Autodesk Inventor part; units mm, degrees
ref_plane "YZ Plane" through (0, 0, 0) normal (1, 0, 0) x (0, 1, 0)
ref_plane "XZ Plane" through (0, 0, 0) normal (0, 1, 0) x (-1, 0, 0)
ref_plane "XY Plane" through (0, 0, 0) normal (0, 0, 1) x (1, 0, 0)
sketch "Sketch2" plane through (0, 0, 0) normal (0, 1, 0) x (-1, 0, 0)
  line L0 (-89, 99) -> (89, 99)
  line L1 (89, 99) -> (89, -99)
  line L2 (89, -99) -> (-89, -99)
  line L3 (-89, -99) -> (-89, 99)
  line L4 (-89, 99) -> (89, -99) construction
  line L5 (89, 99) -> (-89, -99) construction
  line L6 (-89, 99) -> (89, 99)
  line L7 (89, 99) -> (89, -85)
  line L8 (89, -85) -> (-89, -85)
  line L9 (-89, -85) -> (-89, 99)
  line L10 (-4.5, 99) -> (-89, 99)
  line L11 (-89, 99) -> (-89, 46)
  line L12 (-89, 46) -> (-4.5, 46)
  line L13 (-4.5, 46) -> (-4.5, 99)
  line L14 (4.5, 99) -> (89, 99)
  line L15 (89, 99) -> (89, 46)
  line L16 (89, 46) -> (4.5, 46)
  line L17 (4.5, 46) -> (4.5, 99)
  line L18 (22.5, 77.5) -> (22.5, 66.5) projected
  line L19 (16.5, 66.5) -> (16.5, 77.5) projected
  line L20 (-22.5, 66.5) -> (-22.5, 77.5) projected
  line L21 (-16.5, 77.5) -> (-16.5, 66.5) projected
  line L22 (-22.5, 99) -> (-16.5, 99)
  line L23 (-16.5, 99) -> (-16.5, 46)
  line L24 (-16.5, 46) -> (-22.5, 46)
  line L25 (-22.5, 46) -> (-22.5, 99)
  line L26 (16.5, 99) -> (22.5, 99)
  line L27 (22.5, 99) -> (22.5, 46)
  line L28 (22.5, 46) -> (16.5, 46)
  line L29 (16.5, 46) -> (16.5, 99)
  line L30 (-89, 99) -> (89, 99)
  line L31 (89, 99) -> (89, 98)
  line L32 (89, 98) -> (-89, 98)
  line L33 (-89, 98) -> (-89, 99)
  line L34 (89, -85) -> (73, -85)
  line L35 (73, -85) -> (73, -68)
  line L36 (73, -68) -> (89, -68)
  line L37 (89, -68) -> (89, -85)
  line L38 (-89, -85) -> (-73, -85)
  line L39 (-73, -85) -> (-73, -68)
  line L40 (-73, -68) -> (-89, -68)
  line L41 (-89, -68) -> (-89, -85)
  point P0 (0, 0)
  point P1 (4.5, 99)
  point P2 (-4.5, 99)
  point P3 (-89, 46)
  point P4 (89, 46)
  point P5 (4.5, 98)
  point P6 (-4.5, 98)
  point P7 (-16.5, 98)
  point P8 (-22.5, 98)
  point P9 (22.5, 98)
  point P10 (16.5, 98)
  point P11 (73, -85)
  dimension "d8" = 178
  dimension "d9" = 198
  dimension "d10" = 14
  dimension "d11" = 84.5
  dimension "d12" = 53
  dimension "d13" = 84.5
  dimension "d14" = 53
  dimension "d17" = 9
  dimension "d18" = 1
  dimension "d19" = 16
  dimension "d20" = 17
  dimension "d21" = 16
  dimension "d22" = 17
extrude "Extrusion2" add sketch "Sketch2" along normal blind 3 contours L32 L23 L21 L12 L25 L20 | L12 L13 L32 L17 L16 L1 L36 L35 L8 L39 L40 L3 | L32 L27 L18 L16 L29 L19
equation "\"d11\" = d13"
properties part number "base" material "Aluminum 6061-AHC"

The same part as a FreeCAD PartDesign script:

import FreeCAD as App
import Part
import Sketcher

V = App.Vector

doc = App.newDocument("Part")
body = doc.addObject("PartDesign::Body", "Body")

# Sketch on XZ plane
sketch1 = body.newObject("Sketcher::SketchObject", "Sketch")
sketch1.AttachmentSupport = (doc.getObject("XZ_Plane"), [""])
sketch1.MapMode = "FlatFace"
sketch1.addGeometry([
    Part.LineSegment(V(16, 98, 0), V(22, 98, 0)),  # 0
    Part.LineSegment(V(22, 98, 0), V(22, 46, 0)),  # 1
    Part.LineSegment(V(22, 46, 0), V(89, 46, 0)),  # 2
    Part.LineSegment(V(89, 46, 0), V(89, -68, 0)),  # 3
    Part.LineSegment(V(89, -68, 0), V(73, -68, 0)),  # 4
    Part.LineSegment(V(73, -68, 0), V(73, -85, 0)),  # 5
    Part.LineSegment(V(73, -85, 0), V(-73, -85, 0)),  # 6
    Part.LineSegment(V(-73, -85, 0), V(-73, -68, 0)),  # 7
    Part.LineSegment(V(-73, -68, 0), V(-89, -68, 0)),  # 8
    Part.LineSegment(V(-89, -68, 0), V(-89, 46, 0)),  # 9
    Part.LineSegment(V(-89, 46, 0), V(-22, 46, 0)),  # 10
    Part.LineSegment(V(-22, 46, 0), V(-22, 98, 0)),  # 11
    Part.LineSegment(V(-22, 98, 0), V(-16, 98, 0)),  # 12
    Part.LineSegment(V(-16, 98, 0), V(-16, 46, 0)),  # 13
    Part.LineSegment(V(-16, 46, 0), V(-4, 46, 0)),  # 14
    Part.LineSegment(V(-4, 46, 0), V(-4, 98, 0)),  # 15
    Part.LineSegment(V(-4, 98, 0), V(4, 98, 0)),  # 16
    Part.LineSegment(V(4, 98, 0), V(4, 46, 0)),  # 17
    Part.LineSegment(V(4, 46, 0), V(16, 46, 0)),  # 18
    Part.LineSegment(V(16, 46, 0), V(16, 98, 0)),  # 19
], False)
sketch1.addConstraint([
    Sketcher.Constraint("Coincident", 0, 2, 1, 1),
    Sketcher.Constraint("Coincident", 1, 2, 2, 1),
    Sketcher.Constraint("Coincident", 2, 2, 3, 1),
    Sketcher.Constraint("Coincident", 3, 2, 4, 1),
    Sketcher.Constraint("Coincident", 4, 2, 5, 1),
    Sketcher.Constraint("Coincident", 5, 2, 6, 1),
    Sketcher.Constraint("Coincident", 6, 2, 7, 1),
    Sketcher.Constraint("Coincident", 7, 2, 8, 1),
    Sketcher.Constraint("Coincident", 8, 2, 9, 1),
    Sketcher.Constraint("Coincident", 9, 2, 10, 1),
    Sketcher.Constraint("Coincident", 10, 2, 11, 1),
    Sketcher.Constraint("Coincident", 11, 2, 12, 1),
    Sketcher.Constraint("Coincident", 12, 2, 13, 1),
    Sketcher.Constraint("Coincident", 13, 2, 14, 1),
    Sketcher.Constraint("Coincident", 14, 2, 15, 1),
    Sketcher.Constraint("Coincident", 15, 2, 16, 1),
    Sketcher.Constraint("Coincident", 16, 2, 17, 1),
    Sketcher.Constraint("Coincident", 17, 2, 18, 1),
    Sketcher.Constraint("Coincident", 18, 2, 19, 1),
    Sketcher.Constraint("Coincident", 19, 2, 0, 1),
    Sketcher.Constraint("Horizontal", 0),
    Sketcher.Constraint("Vertical", 1),
    Sketcher.Constraint("Horizontal", 2),
    Sketcher.Constraint("Vertical", 3),
    Sketcher.Constraint("Horizontal", 4),
    Sketcher.Constraint("Vertical", 5),
    Sketcher.Constraint("Horizontal", 6),
    Sketcher.Constraint("Vertical", 7),
    Sketcher.Constraint("Horizontal", 8),
    Sketcher.Constraint("Vertical", 9),
    Sketcher.Constraint("Horizontal", 10),
    Sketcher.Constraint("Vertical", 11),
    Sketcher.Constraint("Horizontal", 12),
    Sketcher.Constraint("Vertical", 13),
    Sketcher.Constraint("Horizontal", 14),
    Sketcher.Constraint("Vertical", 15),
    Sketcher.Constraint("Horizontal", 16),
    Sketcher.Constraint("Vertical", 17),
    Sketcher.Constraint("Horizontal", 18),
    Sketcher.Constraint("Vertical", 19),
    Sketcher.Constraint("Symmetric", 4, 2, 7, 2, -2),
    Sketcher.Constraint("Symmetric", 2, 2, 9, 2, -2),
    Sketcher.Constraint("Symmetric", 0, 2, 11, 2, -2),
    Sketcher.Constraint("Symmetric", 14, 2, 17, 2, -2),
    Sketcher.Constraint("Horizontal", 10, 2, 13, 2),
    Sketcher.Constraint("Horizontal", 12, 2, 15, 2),
    Sketcher.Constraint("Equal", 0, 12),
    Sketcher.Constraint("DistanceX", 4, 2, 4, 1, 16.0),
    Sketcher.Constraint("DistanceX", 16, 1, 16, 2, 9.0),
    Sketcher.Constraint("DistanceY", 5, 2, 5, 1, 17.0),
    Sketcher.Constraint("DistanceX", 0, 1, 0, 2, 6.0),
    Sketcher.Constraint("DistanceX", 6, 2, 6, 1, 146.0),
    Sketcher.Constraint("DistanceX", 14, 1, 14, 2, 12.0),
    Sketcher.Constraint("DistanceY", 1, 2, 1, 1, 52.0),
    Sketcher.Constraint("DistanceY", 3, 2, 3, 1, 114.0),
    Sketcher.Constraint("DistanceY", -1, 1, 0, 2, 98.0),
])
pad1 = body.newObject("PartDesign::Pad", "Pad")
pad1.Profile = sketch1
pad1.Length = 3
pad1.Reversed = True

doc.recompute()
